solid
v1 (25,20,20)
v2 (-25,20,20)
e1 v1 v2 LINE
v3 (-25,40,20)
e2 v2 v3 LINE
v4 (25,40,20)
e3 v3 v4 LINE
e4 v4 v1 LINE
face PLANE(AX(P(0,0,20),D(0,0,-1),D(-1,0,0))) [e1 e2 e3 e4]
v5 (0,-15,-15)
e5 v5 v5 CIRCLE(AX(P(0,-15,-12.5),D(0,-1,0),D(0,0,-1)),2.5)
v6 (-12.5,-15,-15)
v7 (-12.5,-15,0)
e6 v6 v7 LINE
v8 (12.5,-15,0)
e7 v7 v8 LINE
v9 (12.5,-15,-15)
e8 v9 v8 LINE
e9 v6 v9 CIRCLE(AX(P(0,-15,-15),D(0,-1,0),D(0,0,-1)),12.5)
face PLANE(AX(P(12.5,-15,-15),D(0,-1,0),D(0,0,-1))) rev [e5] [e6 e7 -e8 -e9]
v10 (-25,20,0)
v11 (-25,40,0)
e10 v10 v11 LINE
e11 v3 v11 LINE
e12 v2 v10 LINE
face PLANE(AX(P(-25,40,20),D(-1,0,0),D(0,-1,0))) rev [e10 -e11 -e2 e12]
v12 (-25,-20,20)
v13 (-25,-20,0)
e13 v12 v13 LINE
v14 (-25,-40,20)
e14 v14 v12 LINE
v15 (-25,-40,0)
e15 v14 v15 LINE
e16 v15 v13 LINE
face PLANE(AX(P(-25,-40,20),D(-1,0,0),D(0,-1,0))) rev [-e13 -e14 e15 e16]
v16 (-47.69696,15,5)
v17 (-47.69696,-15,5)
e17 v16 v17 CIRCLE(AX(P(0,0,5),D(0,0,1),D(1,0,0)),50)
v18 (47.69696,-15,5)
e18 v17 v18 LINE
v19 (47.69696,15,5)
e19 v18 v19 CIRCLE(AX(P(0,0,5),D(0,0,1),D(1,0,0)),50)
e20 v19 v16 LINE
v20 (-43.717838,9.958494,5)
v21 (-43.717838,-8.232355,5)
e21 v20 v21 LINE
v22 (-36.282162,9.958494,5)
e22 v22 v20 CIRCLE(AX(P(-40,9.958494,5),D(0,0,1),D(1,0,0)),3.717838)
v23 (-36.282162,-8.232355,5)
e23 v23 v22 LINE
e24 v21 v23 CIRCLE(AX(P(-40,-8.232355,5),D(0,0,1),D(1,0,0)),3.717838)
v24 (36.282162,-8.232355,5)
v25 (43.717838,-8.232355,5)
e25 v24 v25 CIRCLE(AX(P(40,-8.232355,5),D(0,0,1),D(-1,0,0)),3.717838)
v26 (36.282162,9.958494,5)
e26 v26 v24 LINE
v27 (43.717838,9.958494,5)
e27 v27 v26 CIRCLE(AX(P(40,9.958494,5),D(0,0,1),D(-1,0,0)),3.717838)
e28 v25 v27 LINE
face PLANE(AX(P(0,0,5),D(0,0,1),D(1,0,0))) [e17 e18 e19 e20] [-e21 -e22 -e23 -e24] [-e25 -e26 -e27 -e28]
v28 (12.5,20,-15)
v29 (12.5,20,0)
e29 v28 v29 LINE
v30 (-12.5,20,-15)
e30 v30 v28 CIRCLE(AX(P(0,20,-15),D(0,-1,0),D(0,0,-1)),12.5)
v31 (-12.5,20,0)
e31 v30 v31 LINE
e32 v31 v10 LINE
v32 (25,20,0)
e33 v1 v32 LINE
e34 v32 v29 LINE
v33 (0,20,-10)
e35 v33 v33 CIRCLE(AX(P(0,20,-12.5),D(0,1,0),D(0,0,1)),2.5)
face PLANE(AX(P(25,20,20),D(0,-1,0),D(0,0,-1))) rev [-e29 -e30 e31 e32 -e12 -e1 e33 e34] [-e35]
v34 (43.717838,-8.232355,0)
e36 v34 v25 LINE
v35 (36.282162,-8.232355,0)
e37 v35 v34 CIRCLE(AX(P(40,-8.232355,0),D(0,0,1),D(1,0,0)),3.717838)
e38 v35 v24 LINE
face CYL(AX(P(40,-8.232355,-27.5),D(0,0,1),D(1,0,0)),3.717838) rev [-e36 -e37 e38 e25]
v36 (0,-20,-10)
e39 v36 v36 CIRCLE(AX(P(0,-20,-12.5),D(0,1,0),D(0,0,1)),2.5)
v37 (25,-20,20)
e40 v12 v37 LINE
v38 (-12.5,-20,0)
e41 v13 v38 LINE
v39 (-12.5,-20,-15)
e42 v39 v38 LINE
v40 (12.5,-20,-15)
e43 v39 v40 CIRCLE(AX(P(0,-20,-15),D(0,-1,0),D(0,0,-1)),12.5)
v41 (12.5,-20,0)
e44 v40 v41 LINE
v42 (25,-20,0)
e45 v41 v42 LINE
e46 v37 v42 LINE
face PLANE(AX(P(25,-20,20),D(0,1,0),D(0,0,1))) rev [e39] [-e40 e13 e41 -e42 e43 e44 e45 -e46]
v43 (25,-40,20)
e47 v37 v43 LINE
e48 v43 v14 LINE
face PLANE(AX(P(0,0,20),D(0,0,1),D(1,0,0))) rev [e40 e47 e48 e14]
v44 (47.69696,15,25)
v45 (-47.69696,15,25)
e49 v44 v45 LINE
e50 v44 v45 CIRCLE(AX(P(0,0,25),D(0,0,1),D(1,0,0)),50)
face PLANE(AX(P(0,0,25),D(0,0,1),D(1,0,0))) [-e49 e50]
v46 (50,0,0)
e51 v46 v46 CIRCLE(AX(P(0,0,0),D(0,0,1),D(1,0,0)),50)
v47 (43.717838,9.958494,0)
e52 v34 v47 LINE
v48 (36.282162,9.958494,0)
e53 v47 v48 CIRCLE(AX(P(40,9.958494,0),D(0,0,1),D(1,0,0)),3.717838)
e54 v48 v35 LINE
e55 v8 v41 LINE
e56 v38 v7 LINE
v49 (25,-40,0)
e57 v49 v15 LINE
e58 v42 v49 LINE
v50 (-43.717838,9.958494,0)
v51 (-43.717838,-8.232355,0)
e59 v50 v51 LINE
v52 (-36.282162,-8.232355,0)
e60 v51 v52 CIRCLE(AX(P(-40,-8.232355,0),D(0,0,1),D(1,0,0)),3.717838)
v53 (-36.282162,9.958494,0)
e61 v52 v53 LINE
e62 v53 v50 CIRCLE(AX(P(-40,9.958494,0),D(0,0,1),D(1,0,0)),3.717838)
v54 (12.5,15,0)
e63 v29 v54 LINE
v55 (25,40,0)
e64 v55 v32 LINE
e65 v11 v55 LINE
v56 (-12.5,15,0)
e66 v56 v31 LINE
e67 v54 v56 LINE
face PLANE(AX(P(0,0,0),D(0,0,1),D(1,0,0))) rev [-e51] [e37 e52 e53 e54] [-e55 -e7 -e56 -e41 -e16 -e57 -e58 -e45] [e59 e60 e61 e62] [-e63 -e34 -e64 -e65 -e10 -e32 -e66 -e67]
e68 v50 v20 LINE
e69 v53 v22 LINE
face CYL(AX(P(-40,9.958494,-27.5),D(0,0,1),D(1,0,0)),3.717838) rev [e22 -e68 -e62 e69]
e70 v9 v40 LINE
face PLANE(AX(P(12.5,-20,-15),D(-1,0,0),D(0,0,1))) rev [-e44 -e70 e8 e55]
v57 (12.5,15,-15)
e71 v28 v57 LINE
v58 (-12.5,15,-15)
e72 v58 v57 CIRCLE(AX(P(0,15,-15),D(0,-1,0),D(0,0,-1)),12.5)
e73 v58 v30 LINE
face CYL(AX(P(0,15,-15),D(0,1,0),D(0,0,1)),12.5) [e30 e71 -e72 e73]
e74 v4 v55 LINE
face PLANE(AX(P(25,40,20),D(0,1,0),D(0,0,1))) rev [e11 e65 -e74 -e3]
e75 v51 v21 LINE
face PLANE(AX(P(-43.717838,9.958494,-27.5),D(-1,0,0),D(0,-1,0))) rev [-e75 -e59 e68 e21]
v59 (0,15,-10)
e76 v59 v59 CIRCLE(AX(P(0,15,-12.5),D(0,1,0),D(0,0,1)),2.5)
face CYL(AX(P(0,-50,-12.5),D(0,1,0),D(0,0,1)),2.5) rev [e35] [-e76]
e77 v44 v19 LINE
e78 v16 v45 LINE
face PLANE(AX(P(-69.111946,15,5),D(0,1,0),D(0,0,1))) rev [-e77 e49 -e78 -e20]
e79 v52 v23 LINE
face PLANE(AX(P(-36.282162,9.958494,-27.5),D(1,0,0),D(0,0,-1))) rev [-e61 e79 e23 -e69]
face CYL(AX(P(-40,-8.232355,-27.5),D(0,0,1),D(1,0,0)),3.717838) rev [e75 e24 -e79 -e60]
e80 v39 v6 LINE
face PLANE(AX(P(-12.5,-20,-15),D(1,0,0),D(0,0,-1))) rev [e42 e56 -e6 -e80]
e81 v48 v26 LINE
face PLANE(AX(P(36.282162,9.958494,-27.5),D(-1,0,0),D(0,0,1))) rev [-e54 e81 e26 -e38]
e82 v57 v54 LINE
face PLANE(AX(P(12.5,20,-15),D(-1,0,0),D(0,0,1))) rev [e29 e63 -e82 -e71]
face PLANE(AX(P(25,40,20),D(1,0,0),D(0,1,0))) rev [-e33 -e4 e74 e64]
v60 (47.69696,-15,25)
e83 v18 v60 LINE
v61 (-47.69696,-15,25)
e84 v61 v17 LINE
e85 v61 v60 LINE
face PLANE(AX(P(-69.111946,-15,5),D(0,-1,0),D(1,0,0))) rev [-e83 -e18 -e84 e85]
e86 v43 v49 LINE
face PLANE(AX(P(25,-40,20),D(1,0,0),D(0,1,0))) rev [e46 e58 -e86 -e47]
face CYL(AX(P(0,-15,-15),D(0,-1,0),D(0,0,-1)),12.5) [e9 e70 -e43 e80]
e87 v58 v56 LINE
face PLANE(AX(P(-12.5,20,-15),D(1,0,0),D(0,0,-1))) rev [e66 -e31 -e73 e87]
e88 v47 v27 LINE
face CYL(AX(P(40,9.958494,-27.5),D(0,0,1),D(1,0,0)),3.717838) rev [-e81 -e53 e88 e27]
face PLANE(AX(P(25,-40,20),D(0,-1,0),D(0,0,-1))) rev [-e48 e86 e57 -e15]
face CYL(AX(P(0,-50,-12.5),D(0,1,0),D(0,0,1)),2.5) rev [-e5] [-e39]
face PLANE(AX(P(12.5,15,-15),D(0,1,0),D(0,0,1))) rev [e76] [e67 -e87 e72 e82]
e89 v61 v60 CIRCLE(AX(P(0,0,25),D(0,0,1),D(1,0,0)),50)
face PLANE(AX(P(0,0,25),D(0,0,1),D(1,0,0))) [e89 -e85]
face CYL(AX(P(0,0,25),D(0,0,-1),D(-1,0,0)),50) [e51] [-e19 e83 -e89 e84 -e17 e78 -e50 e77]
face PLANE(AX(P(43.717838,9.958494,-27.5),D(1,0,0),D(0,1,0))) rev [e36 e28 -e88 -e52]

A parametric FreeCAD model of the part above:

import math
import FreeCAD as App
import Part
import Sketcher


def add_polygon(sketch, points):
    """Adds a closed chain of lines whose ends are joined by coincident constraints."""
    first, n = sketch.GeometryCount, len(points)
    for a, b in zip(points, points[1:] + points[:1]):
        sketch.addGeometry(Part.LineSegment(App.Vector(*a, 0), App.Vector(*b, 0)), False)
    for i in range(n):
        sketch.addConstraint(Sketcher.Constraint("Coincident", first + i, 2, first + (i + 1) % n, 1))

doc = App.newDocument("Part")
params = doc.addObject("Spreadsheet::Sheet", "Params")
for row, (alias, value) in enumerate([
    ("sketch1_diameter", "100 mm"),
    ("pad1_length", "25 mm"),
    ("sketch2_width", "50 mm"),
    ("sketch2_height", "20 mm"),
    ("pocket1_length", "20 mm"),
    ("sketch3_width", "25 mm"),
    ("sketch3_height", "5 mm"),
    ("pad2_length", "15 mm"),
    ("sketch4_radius", "12.5 mm"),
    ("pad3_length", "5 mm"),
    ("sketch5_diameter", "5 mm"),
    ("sketch6_height", "30 mm"),
    ("pocket3_length", "20 mm"),
], start=1):
    params.set(f"A{row}", alias)
    params.set(f"B{row}", "=" + value)
    params.setAlias(f"B{row}", alias)

body = doc.addObject("PartDesign::Body", "Body")

# Sketch on XY plane
sketch1 = body.newObject("Sketcher::SketchObject", "Sketch")
sketch1.AttachmentSupport = (doc.getObject("XY_Plane"), [""])
sketch1.MapMode = "FlatFace"
sketch1.addGeometry(Part.Circle(App.Vector(0, 0, 0), App.Vector(0, 0, 1), 50), False)
sketch1.addConstraint([
    Sketcher.Constraint("Coincident", 0, 3, -1, 1),
    Sketcher.Constraint("Diameter", 0, 100.0),
])
sketch1.setExpression("Constraints[1]", "Params.sketch1_diameter")
pad1 = body.newObject("PartDesign::Pad", "Pad")
pad1.Profile = sketch1
pad1.setExpression("Length", "Params.pad1_length")

# Sketch on XY plane
sketch2 = body.newObject("Sketcher::SketchObject", "Sketch001")
sketch2.AttachmentSupport = (doc.getObject("XY_Plane"), [""])
sketch2.MapMode = "FlatFace"
add_polygon(sketch2, [(25, 40), (25, 20), (-25, 20), (-25, 40)])  # lines 0-3
add_polygon(sketch2, [(25, -20), (25, -40), (-25, -40), (-25, -20)])  # lines 4-7
sketch2.addConstraint([
    Sketcher.Constraint("Vertical", 0),
    Sketcher.Constraint("Horizontal", 1),
    Sketcher.Constraint("Vertical", 2),
    Sketcher.Constraint("Horizontal", 3),
    Sketcher.Constraint("Vertical", 4),
    Sketcher.Constraint("Horizontal", 5),
    Sketcher.Constraint("Vertical", 6),
    Sketcher.Constraint("Horizontal", 7),
    Sketcher.Constraint("Symmetric", 2, 2, 4, 2, -1, 1),
    Sketcher.Constraint("Symmetric", 0, 2, 6, 2, -1, 1),
    Sketcher.Constraint("Vertical", 3, 2, 4, 2),
    Sketcher.Constraint("DistanceX", 1, 2, 1, 1, 50.0),
    Sketcher.Constraint("DistanceY", 0, 2, 0, 1, 20.0),
    Sketcher.Constraint("DistanceY", -1, 1, 0, 2, 20.0),
])
sketch2.setExpression("Constraints[19]", "Params.sketch2_width")
sketch2.setExpression("Constraints[20]", "Params.sketch2_height")
pocket1 = body.newObject("PartDesign::Pocket", "Pocket")
pocket1.Profile = sketch2
pocket1.setExpression("Length", "Params.pocket1_length")
pocket1.Reversed = True

# Sketch on XY plane
sketch3 = body.newObject("Sketcher::SketchObject", "Sketch002")
sketch3.AttachmentSupport = (doc.getObject("XY_Plane"), [""])
sketch3.MapMode = "FlatFace"
add_polygon(sketch3, [(12, 20), (12, 15), (-12, 15), (-12, 20)])  # lines 0-3
add_polygon(sketch3, [(12, -15), (12, -20), (-12, -20), (-12, -15)])  # lines 4-7
sketch3.addConstraint([
    Sketcher.Constraint("Vertical", 0),
    Sketcher.Constraint("Horizontal", 1),
    Sketcher.Constraint("Vertical", 2),
    Sketcher.Constraint("Horizontal", 3),
    Sketcher.Constraint("Vertical", 4),
    Sketcher.Constraint("Horizontal", 5),
    Sketcher.Constraint("Vertical", 6),
    Sketcher.Constraint("Horizontal", 7),
    Sketcher.Constraint("Symmetric", 2, 2, 4, 2, -1, 1),
    Sketcher.Constraint("Symmetric", 0, 2, 6, 2, -1, 1),
    Sketcher.Constraint("Vertical", 3, 2, 4, 2),
    Sketcher.Constraint("DistanceX", 1, 2, 1, 1, 25.0),
    Sketcher.Constraint("DistanceY", 0, 2, 0, 1, 5.0),
    Sketcher.Constraint("DistanceY", -1, 1, 0, 2, 15.0),
])
sketch3.setExpression("Constraints[19]", "Params.sketch3_width")
sketch3.setExpression("Constraints[20]", "Params.sketch3_height")
pad2 = body.newObject("PartDesign::Pad", "Pad001")
pad2.Profile = sketch3
pad2.setExpression("Length", "Params.pad2_length")
pad2.Reversed = True

# Sketch on XZ plane
sketch4 = body.newObject("Sketcher::SketchObject", "Sketch003")
sketch4.AttachmentSupport = (doc.getObject("XZ_Plane"), [""])
sketch4.MapMode = "FlatFace"
sketch4.AttachmentOffset = App.Placement(App.Vector(0, 0, 20), App.Rotation())
sketch4.addGeometry([
    Part.LineSegment(App.Vector(12, -15, 0), App.Vector(-12, -15, 0)),
    Part.ArcOfCircle(Part.Circle(App.Vector(0, -15, 0), App.Vector(0, 0, 1), 12), math.radians(180), math.radians(360)),
], False)
sketch4.addConstraint([
    Sketcher.Constraint("Coincident", 0, 1, 1, 2),
    Sketcher.Constraint("Coincident", 1, 1, 0, 2),
    Sketcher.Constraint("Horizontal", 0),
    Sketcher.Constraint("PointOnObject", 1, 3, -2),
    Sketcher.Constraint("Horizontal", 1, 3, 0, 1),
    Sketcher.Constraint("Radius", 1, 12.5),
    Sketcher.Constraint("DistanceY", 1, 3, -1, 1, 15.0),
])
sketch4.setExpression("Constraints[5]", "Params.sketch4_radius")
pad3 = body.newObject("PartDesign::Pad", "Pad002")
pad3.Profile = sketch4
pad3.setExpression("Length", "Params.pad3_length")
pad3.Reversed = True
doc.recompute()

mirrored = body.newObject("PartDesign::Mirrored", "Mirrored")
mirrored.Originals = [pad3]
mirrored.MirrorPlane = (doc.getObject("XZ_Plane"), [""])
body.Tip = mirrored

# Sketch on XZ plane
sketch5 = body.newObject("Sketcher::SketchObject", "Sketch004")
sketch5.AttachmentSupport = (doc.getObject("XZ_Plane"), [""])
sketch5.MapMode = "FlatFace"
sketch5.AttachmentOffset = App.Placement(App.Vector(0, 0, -20), App.Rotation())
sketch5.addGeometry(Part.Circle(App.Vector(0, -12.5, 0), App.Vector(0, 0, 1), 2.5), False)
sketch5.addConstraint([
    Sketcher.Constraint("PointOnObject", 0, 3, -2),
    Sketcher.Constraint("Diameter", 0, 5.0),
    Sketcher.Constraint("DistanceY", 0, 3, -1, 1, 12.5),
])
sketch5.setExpression("Constraints[1]", "Params.sketch5_diameter")
pocket2 = body.newObject("PartDesign::Pocket", "Pocket001")
pocket2.Profile = sketch5
pocket2.Type = "ThroughAll"
pocket2.Reversed = True

# Sketch on XY plane
sketch6 = body.newObject("Sketcher::SketchObject", "Sketch005")
sketch6.AttachmentSupport = (doc.getObject("XY_Plane"), [""])
sketch6.MapMode = "FlatFace"
sketch6.AttachmentOffset = App.Placement(App.Vector(0, 0, 25), App.Rotation())
add_polygon(sketch6, [(-69, 15), (-69, -15), (68, -15), (68, 15)])  # lines 0-3
sketch6.addConstraint([
    Sketcher.Constraint("Vertical", 0),
    Sketcher.Constraint("Horizontal", 1),
    Sketcher.Constraint("Vertical", 2),
    Sketcher.Constraint("Horizontal", 3),
    Sketcher.Constraint("DistanceY", 0, 2, 0, 1, 30.0),
    Sketcher.Constraint("DistanceY", 0, 2, -1, 1, 15.0),
    Sketcher.Constraint("DistanceX", 1, 1, 1, 2, 137.559992),
    Sketcher.Constraint("DistanceX", 0, 2, -1, 1, 69.111946),
])
sketch6.setExpression("Constraints[8]", "Params.sketch6_height")
pocket3 = body.newObject("PartDesign::Pocket", "Pocket002")
pocket3.Profile = sketch6
pocket3.setExpression("Length", "Params.pocket3_length")

# Sketch on XY plane
sketch7 = body.newObject("Sketcher::SketchObject", "Sketch006")
sketch7.AttachmentSupport = (doc.getObject("XY_Plane"), [""])
sketch7.MapMode = "FlatFace"
sketch7.AttachmentOffset = App.Placement(App.Vector(0, 0, 5), App.Rotation())
sketch7.addGeometry([
    Part.LineSegment(App.Vector(-36.3, -8.2, 0), App.Vector(-36.3, 10, 0)),  # 0
    Part.ArcOfCircle(Part.Circle(App.Vector(-40, 10, 0), App.Vector(0, 0, 1), 3.7), math.radians(0), math.radians(180)),  # 1
    Part.LineSegment(App.Vector(-43.7, 10, 0), App.Vector(-43.7, -8.2, 0)),  # 2
    Part.ArcOfCircle(Part.Circle(App.Vector(-40, -8.2, 0), App.Vector(0, 0, 1), 3.7), math.radians(180), math.radians(360)),  # 3
    Part.LineSegment(App.Vector(36.3, 10, 0), App.Vector(36.3, -8.2, 0)),  # 4
    Part.ArcOfCircle(Part.Circle(App.Vector(40, -8.2, 0), App.Vector(0, 0, 1), 3.7), math.radians(180), math.radians(360)),  # 5
    Part.LineSegment(App.Vector(43.7, -8.2, 0), App.Vector(43.7, 10, 0)),  # 6
    Part.ArcOfCircle(Part.Circle(App.Vector(40, 10, 0), App.Vector(0, 0, 1), 3.7), math.radians(0), math.radians(180)),  # 7
], False)
sketch7.addConstraint([
    Sketcher.Constraint("Tangent", 0, 2, 1, 1),
    Sketcher.Constraint("Tangent", 1, 2, 2, 1),
    Sketcher.Constraint("Tangent", 2, 2, 3, 1),
    Sketcher.Constraint("Tangent", 3, 2, 0, 1),
    Sketcher.Constraint("Tangent", 4, 2, 5, 1),
    Sketcher.Constraint("Tangent", 5, 2, 6, 1),
    Sketcher.Constraint("Tangent", 6, 2, 7, 1),
    Sketcher.Constraint("Tangent", 7, 2, 4, 1),
    Sketcher.Constraint("Vertical", 0),
    Sketcher.Constraint("Vertical", 2),
    Sketcher.Constraint("Vertical", 4),
    Sketcher.Constraint("Vertical", 6),
    Sketcher.Constraint("Equal", 3, 5),
    Sketcher.Constraint("Symmetric", 3, 3, 5, 3, -2),
    Sketcher.Constraint("Horizontal", 1, 3, 7, 3),
    Sketcher.Constraint("DistanceX", 1, 3, -1, 1, 40.0),
    Sketcher.Constraint("Radius", 1, 3.717838),
    Sketcher.Constraint("DistanceY", 0, 1, 0, 2, 18.190848),
    Sketcher.Constraint("DistanceY", -1, 1, 1, 3, 9.958494),
])
pocket4 = body.newObject("PartDesign::Pocket", "Pocket003")
pocket4.Profile = sketch7
pocket4.Type = "ThroughAll"

doc.recompute()
